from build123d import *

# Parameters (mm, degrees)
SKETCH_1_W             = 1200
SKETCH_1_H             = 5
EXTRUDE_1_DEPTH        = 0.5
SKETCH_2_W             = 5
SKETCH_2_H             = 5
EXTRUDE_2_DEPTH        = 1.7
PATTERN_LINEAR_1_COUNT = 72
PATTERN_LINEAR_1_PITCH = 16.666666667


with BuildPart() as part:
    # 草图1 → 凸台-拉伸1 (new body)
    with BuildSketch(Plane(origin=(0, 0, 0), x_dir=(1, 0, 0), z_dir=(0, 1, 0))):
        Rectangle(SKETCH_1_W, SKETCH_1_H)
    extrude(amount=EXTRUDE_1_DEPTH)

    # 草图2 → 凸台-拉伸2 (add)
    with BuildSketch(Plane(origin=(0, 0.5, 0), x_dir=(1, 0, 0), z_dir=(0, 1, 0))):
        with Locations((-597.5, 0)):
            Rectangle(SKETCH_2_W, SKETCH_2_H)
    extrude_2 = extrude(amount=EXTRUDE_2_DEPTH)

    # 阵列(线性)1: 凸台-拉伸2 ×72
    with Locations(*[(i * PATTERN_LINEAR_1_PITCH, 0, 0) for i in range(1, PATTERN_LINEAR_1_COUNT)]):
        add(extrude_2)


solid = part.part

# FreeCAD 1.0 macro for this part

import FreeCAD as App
import Part
import Sketcher

V = App.Vector
Q = App.Units.Quantity


def add_polygon(sketch, points):
    """Adds a closed chain of lines whose ends are joined by coincident constraints."""
    first, n = sketch.GeometryCount, len(points)
    for a, b in zip(points, points[1:] + points[:1]):
        sketch.addGeometry(Part.LineSegment(App.Vector(*a, 0), App.Vector(*b, 0)), False)
    for i in range(n):
        sketch.addConstraint(Sketcher.Constraint("Coincident", first + i, 2, first + (i + 1) % n, 1))

doc = App.newDocument("Part")
params = doc.addObject("Spreadsheet::Sheet", "Params")
for row, (alias, value) in enumerate([
    ("sketch1_width", "1200 mm"),
    ("sketch1_height", "5 mm"),
    ("pad1_length", "0.5 mm"),
    ("sketch2_width", "5 mm"),
    ("pad2_length", "1.7 mm"),
    ("linearpattern_pitch", "16.666667 mm"),
], start=1):
    params.set(f"A{row}", alias)
    params.set(f"B{row}", "=" + value)
    params.setAlias(f"B{row}", alias)

body = doc.addObject("PartDesign::Body", "Body")

sketch1 = body.newObject("Sketcher::SketchObject", "Sketch")
sketch1.AttachmentSupport = (doc.getObject("XZ_Plane"), [""])
sketch1.MapMode = "FlatFace"
add_polygon(sketch1, [(-600, -2.5), (-600, 2.5), (600, 2.5), (600, -2.5)])
sketch1.addConstraint([
    Sketcher.Constraint("Vertical", 0),
    Sketcher.Constraint("Horizontal", 1),
    Sketcher.Constraint("Vertical", 2),
    Sketcher.Constraint("Horizontal", 3),
    Sketcher.Constraint("Symmetric", 0, 2, 2, 2, -1, 1),
    Sketcher.Constraint("DistanceX", 1, 1, 1, 2, Q("1200 mm")),
    Sketcher.Constraint("DistanceY", 0, 1, 0, 2, Q("5 mm")),
])
sketch1.setExpression("Constraints[9]", "Params.sketch1_width")
sketch1.setExpression("Constraints[10]", "Params.sketch1_height")
pad1 = body.newObject("PartDesign::Pad", "Pad")
pad1.Profile = sketch1
pad1.setExpression("Length", "Params.pad1_length")
pad1.Reversed = True

sketch2 = body.newObject("Sketcher::SketchObject", "Sketch001")
sketch2.AttachmentSupport = (doc.getObject("XZ_Plane"), [""])
sketch2.MapMode = "FlatFace"
sketch2.AttachmentOffset = App.Placement(V(0, 0, -0.5), App.Rotation())
add_polygon(sketch2, [(-600, -2.5), (-600, 2.5), (-595, 2.5), (-595, -2.5)])
sketch2.addConstraint([
    Sketcher.Constraint("Vertical", 0),
    Sketcher.Constraint("Horizontal", 1),
    Sketcher.Constraint("Vertical", 2),
    Sketcher.Constraint("Horizontal", 3),
    Sketcher.Constraint("Equal", 3, 0),
    Sketcher.Constraint("DistanceX", 1, 1, 1, 2, Q("5 mm")),
    Sketcher.Constraint("DistanceX", 0, 2, -1, 1, Q("600 mm")),
    Sketcher.Constraint("DistanceY", -1, 1, 0, 2, Q("2.5 mm")),
])
sketch2.setExpression("Constraints[9]", "Params.sketch2_width")
pad2 = body.newObject("PartDesign::Pad", "Pad001")
pad2.Profile = sketch2
pad2.setExpression("Length", "Params.pad2_length")
pad2.Reversed = True
doc.recompute()

linearpattern = body.newObject("PartDesign::LinearPattern", "LinearPattern")
linearpattern.Originals = [pad2]
linearpattern.Direction = (doc.getObject("X_Axis"), [""])
linearpattern.Mode = "offset"
linearpattern.setExpression("Offset", "Params.linearpattern_pitch")
linearpattern.Occurrences = 72
body.Tip = linearpattern

doc.recompute()
